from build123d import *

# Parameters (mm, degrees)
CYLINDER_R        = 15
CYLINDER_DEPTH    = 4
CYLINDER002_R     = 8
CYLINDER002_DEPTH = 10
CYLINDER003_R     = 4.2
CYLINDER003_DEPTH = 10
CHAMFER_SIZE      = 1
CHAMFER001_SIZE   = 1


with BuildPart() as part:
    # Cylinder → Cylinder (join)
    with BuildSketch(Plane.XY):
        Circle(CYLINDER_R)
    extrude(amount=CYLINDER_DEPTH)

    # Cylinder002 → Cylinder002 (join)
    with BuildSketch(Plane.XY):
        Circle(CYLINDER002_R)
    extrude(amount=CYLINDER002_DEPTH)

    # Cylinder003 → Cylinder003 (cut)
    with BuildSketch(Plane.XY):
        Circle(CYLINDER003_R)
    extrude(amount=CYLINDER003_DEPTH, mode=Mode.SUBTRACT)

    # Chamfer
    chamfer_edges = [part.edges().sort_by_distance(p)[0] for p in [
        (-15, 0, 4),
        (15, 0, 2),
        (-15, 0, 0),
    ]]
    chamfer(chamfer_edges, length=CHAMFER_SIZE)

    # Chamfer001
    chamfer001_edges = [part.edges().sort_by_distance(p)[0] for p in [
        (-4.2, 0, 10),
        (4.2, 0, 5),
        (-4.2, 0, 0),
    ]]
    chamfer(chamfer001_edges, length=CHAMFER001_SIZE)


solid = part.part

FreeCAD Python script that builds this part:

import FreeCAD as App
import Part
import Sketcher
from FreeCAD import Vector
Q = App.Units.Quantity


def edges_at(feature, points):
    """Names of the edges that pass closest to the given points."""
    edges = feature.Shape.Edges
    near = lambda p: min(range(len(edges)), key=lambda i: edges[i].distToShape(Part.Vertex(*p))[0])
    return sorted({f"Edge{near(p) + 1}" for p in points})

doc = App.newDocument("Part")
body = doc.addObject("PartDesign::Body", "Body")

sketch1 = body.newObject("Sketcher::SketchObject", "Sketch")
sketch1.AttachmentSupport = (doc.getObject("XY_Plane"), [""])
sketch1.MapMode = "FlatFace"
sketch1.addGeometry(Part.Circle(Vector(0, 0, 0), Vector(0, 0, 1), 15), False)
sketch1.addConstraint([
    Sketcher.Constraint("Coincident", 0, 3, -1, 1),
    Sketcher.Constraint("Diameter", 0, Q("30 mm")),
])
pad1 = body.newObject("PartDesign::Pad", "Pad")
pad1.Profile = sketch1
pad1.Length = 4

sketch2 = body.newObject("Sketcher::SketchObject", "Sketch001")
sketch2.AttachmentSupport = (doc.getObject("XY_Plane"), [""])
sketch2.MapMode = "FlatFace"
sketch2.addGeometry(Part.Circle(Vector(0, 0, 0), Vector(0, 0, 1), 8), False)
sketch2.addConstraint([
    Sketcher.Constraint("Coincident", 0, 3, -1, 1),
    Sketcher.Constraint("Diameter", 0, Q("16 mm")),
])
pad2 = body.newObject("PartDesign::Pad", "Pad001")
pad2.Profile = sketch2
pad2.Length = 10

sketch3 = body.newObject("Sketcher::SketchObject", "Sketch002")
sketch3.AttachmentSupport = (doc.getObject("XY_Plane"), [""])
sketch3.MapMode = "FlatFace"
sketch3.addGeometry(Part.Circle(Vector(0, 0, 0), Vector(0, 0, 1), 4.2), False)
sketch3.addConstraint([
    Sketcher.Constraint("Coincident", 0, 3, -1, 1),
    Sketcher.Constraint("Diameter", 0, Q("8.4 mm")),
])
pocket1 = body.newObject("PartDesign::Pocket", "Pocket")
pocket1.Profile = sketch3
pocket1.Length = 10
pocket1.Reversed = True
doc.recompute()

chamfer = body.newObject("PartDesign::Chamfer", "Chamfer")
chamfer.Base = (pocket1, edges_at(pocket1, [(-15, 0, 4), (15, 0, 2), (-15, 0, 0)]))
chamfer.Size = 1
doc.recompute()

chamfer2 = body.newObject("PartDesign::Chamfer", "Chamfer001")
chamfer2.Base = (chamfer, edges_at(chamfer, [(-4.2, 0, 10), (4.2, 0, 5), (-4.2, 0, 0)]))
chamfer2.Size = 1

doc.recompute()
